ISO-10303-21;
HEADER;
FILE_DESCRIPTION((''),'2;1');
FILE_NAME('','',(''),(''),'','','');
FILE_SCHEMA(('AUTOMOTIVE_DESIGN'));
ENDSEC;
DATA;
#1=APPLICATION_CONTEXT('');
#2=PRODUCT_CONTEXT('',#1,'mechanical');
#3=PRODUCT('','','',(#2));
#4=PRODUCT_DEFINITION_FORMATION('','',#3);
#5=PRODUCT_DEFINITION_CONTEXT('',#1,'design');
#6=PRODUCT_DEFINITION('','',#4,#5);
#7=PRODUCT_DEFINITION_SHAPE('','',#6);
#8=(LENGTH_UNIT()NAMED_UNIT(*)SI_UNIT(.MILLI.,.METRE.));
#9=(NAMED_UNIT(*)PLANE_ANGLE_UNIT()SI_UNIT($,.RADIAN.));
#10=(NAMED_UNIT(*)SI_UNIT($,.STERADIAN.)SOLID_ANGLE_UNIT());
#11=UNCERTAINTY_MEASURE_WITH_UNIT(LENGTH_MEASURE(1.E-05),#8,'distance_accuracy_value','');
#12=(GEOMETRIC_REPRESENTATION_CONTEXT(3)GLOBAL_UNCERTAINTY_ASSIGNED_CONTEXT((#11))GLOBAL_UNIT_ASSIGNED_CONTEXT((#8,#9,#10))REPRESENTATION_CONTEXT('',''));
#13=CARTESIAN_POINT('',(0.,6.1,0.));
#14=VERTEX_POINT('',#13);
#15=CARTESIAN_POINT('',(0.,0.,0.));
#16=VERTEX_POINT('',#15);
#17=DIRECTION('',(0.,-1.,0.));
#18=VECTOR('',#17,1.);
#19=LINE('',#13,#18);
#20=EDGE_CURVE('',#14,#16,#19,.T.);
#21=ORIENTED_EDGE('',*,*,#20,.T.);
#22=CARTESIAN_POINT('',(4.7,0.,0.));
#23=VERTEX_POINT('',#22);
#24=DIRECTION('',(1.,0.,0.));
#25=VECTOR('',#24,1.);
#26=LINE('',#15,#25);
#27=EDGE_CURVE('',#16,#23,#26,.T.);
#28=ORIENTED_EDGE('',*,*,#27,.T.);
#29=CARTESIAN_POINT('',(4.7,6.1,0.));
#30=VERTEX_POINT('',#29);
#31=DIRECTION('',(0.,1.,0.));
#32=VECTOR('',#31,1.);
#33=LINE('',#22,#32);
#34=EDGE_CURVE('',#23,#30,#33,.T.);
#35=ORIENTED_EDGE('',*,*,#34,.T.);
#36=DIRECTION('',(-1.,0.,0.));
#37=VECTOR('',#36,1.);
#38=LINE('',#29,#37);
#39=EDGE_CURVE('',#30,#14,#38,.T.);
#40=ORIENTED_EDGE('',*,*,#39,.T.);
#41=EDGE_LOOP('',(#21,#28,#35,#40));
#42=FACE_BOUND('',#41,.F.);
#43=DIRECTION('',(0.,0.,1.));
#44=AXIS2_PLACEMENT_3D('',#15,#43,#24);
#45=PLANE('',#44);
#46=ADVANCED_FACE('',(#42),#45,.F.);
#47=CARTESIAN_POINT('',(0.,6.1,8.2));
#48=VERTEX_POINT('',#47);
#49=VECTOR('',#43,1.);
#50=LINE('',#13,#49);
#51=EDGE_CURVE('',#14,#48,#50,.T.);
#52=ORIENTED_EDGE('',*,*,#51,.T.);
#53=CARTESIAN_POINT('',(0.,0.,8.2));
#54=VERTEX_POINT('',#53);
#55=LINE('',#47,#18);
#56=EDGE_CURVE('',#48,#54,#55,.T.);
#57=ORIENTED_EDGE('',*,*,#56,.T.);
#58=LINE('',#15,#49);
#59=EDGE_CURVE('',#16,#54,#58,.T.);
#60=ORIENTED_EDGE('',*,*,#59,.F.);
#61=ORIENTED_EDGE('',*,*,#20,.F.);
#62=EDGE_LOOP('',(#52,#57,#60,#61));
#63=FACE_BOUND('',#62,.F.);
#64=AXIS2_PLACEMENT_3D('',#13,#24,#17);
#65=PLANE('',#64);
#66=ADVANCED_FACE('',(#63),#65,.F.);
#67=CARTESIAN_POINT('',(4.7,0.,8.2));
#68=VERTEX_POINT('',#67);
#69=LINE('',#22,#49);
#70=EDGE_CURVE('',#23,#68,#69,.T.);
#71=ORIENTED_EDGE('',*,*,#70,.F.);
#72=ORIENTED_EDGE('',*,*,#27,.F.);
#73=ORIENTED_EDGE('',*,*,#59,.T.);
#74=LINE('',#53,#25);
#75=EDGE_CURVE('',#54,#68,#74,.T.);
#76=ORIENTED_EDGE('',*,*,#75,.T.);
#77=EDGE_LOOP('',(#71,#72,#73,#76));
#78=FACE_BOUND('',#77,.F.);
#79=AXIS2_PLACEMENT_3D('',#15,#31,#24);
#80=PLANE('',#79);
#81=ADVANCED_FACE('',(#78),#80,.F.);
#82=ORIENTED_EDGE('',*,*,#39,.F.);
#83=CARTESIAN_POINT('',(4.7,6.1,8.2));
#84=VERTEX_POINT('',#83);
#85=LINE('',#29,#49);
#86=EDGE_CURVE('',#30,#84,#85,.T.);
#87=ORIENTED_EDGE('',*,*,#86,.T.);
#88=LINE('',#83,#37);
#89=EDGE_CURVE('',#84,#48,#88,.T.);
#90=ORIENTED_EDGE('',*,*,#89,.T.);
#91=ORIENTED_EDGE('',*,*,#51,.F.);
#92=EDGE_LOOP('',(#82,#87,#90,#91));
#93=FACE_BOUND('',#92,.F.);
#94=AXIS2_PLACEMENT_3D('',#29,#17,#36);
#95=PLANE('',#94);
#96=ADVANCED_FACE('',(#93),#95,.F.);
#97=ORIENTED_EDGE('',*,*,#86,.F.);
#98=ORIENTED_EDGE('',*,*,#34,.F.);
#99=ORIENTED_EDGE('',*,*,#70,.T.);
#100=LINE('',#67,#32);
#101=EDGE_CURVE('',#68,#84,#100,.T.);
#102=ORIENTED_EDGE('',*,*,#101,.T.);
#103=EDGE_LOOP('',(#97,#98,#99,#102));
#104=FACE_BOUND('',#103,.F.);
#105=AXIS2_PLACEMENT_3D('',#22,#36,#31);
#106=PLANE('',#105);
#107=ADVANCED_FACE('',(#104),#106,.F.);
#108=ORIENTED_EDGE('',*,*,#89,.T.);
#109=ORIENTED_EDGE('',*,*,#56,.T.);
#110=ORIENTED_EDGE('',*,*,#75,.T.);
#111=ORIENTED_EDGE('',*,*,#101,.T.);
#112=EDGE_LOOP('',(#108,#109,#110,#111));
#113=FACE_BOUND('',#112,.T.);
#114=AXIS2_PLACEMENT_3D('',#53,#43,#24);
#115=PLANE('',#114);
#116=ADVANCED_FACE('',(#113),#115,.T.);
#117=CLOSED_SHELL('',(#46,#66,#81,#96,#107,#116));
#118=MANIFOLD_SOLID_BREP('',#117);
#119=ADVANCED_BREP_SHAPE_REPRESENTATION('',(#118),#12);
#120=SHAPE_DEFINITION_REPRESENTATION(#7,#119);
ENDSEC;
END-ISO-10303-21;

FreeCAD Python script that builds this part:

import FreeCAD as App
import Part
import Sketcher
from FreeCAD import Vector
Q = App.Units.Quantity


def add_polygon(sketch, points):
    """Adds a closed chain of lines whose ends are joined by coincident constraints."""
    first, n = sketch.GeometryCount, len(points)
    for a, b in zip(points, points[1:] + points[:1]):
        sketch.addGeometry(Part.LineSegment(App.Vector(*a, 0), App.Vector(*b, 0)), False)
    for i in range(n):
        sketch.addConstraint(Sketcher.Constraint("Coincident", first + i, 2, first + (i + 1) % n, 1))

doc = App.newDocument("Part")
body = doc.addObject("PartDesign::Body", "Body")

sketch1 = body.newObject("Sketcher::SketchObject", "Sketch")
sketch1.AttachmentSupport = (doc.getObject("XY_Plane"), [""])
sketch1.MapMode = "FlatFace"
add_polygon(sketch1, [(0, 6.1), (0, 0), (4.7, 0), (4.7, 6.1)])
sketch1.addConstraint([
    Sketcher.Constraint("Vertical", 0),
    Sketcher.Constraint("Horizontal", 1),
    Sketcher.Constraint("Vertical", 2),
    Sketcher.Constraint("Horizontal", 3),
    Sketcher.Constraint("Coincident", 0, 2, -1, 1),
    Sketcher.Constraint("DistanceX", 1, 1, 1, 2, Q("4.7 mm")),
    Sketcher.Constraint("DistanceY", 0, 2, 0, 1, Q("6.1 mm")),
])
pad1 = body.newObject("PartDesign::Pad", "Pad")
pad1.Profile = sketch1
pad1.Length = 8.2

doc.recompute()
